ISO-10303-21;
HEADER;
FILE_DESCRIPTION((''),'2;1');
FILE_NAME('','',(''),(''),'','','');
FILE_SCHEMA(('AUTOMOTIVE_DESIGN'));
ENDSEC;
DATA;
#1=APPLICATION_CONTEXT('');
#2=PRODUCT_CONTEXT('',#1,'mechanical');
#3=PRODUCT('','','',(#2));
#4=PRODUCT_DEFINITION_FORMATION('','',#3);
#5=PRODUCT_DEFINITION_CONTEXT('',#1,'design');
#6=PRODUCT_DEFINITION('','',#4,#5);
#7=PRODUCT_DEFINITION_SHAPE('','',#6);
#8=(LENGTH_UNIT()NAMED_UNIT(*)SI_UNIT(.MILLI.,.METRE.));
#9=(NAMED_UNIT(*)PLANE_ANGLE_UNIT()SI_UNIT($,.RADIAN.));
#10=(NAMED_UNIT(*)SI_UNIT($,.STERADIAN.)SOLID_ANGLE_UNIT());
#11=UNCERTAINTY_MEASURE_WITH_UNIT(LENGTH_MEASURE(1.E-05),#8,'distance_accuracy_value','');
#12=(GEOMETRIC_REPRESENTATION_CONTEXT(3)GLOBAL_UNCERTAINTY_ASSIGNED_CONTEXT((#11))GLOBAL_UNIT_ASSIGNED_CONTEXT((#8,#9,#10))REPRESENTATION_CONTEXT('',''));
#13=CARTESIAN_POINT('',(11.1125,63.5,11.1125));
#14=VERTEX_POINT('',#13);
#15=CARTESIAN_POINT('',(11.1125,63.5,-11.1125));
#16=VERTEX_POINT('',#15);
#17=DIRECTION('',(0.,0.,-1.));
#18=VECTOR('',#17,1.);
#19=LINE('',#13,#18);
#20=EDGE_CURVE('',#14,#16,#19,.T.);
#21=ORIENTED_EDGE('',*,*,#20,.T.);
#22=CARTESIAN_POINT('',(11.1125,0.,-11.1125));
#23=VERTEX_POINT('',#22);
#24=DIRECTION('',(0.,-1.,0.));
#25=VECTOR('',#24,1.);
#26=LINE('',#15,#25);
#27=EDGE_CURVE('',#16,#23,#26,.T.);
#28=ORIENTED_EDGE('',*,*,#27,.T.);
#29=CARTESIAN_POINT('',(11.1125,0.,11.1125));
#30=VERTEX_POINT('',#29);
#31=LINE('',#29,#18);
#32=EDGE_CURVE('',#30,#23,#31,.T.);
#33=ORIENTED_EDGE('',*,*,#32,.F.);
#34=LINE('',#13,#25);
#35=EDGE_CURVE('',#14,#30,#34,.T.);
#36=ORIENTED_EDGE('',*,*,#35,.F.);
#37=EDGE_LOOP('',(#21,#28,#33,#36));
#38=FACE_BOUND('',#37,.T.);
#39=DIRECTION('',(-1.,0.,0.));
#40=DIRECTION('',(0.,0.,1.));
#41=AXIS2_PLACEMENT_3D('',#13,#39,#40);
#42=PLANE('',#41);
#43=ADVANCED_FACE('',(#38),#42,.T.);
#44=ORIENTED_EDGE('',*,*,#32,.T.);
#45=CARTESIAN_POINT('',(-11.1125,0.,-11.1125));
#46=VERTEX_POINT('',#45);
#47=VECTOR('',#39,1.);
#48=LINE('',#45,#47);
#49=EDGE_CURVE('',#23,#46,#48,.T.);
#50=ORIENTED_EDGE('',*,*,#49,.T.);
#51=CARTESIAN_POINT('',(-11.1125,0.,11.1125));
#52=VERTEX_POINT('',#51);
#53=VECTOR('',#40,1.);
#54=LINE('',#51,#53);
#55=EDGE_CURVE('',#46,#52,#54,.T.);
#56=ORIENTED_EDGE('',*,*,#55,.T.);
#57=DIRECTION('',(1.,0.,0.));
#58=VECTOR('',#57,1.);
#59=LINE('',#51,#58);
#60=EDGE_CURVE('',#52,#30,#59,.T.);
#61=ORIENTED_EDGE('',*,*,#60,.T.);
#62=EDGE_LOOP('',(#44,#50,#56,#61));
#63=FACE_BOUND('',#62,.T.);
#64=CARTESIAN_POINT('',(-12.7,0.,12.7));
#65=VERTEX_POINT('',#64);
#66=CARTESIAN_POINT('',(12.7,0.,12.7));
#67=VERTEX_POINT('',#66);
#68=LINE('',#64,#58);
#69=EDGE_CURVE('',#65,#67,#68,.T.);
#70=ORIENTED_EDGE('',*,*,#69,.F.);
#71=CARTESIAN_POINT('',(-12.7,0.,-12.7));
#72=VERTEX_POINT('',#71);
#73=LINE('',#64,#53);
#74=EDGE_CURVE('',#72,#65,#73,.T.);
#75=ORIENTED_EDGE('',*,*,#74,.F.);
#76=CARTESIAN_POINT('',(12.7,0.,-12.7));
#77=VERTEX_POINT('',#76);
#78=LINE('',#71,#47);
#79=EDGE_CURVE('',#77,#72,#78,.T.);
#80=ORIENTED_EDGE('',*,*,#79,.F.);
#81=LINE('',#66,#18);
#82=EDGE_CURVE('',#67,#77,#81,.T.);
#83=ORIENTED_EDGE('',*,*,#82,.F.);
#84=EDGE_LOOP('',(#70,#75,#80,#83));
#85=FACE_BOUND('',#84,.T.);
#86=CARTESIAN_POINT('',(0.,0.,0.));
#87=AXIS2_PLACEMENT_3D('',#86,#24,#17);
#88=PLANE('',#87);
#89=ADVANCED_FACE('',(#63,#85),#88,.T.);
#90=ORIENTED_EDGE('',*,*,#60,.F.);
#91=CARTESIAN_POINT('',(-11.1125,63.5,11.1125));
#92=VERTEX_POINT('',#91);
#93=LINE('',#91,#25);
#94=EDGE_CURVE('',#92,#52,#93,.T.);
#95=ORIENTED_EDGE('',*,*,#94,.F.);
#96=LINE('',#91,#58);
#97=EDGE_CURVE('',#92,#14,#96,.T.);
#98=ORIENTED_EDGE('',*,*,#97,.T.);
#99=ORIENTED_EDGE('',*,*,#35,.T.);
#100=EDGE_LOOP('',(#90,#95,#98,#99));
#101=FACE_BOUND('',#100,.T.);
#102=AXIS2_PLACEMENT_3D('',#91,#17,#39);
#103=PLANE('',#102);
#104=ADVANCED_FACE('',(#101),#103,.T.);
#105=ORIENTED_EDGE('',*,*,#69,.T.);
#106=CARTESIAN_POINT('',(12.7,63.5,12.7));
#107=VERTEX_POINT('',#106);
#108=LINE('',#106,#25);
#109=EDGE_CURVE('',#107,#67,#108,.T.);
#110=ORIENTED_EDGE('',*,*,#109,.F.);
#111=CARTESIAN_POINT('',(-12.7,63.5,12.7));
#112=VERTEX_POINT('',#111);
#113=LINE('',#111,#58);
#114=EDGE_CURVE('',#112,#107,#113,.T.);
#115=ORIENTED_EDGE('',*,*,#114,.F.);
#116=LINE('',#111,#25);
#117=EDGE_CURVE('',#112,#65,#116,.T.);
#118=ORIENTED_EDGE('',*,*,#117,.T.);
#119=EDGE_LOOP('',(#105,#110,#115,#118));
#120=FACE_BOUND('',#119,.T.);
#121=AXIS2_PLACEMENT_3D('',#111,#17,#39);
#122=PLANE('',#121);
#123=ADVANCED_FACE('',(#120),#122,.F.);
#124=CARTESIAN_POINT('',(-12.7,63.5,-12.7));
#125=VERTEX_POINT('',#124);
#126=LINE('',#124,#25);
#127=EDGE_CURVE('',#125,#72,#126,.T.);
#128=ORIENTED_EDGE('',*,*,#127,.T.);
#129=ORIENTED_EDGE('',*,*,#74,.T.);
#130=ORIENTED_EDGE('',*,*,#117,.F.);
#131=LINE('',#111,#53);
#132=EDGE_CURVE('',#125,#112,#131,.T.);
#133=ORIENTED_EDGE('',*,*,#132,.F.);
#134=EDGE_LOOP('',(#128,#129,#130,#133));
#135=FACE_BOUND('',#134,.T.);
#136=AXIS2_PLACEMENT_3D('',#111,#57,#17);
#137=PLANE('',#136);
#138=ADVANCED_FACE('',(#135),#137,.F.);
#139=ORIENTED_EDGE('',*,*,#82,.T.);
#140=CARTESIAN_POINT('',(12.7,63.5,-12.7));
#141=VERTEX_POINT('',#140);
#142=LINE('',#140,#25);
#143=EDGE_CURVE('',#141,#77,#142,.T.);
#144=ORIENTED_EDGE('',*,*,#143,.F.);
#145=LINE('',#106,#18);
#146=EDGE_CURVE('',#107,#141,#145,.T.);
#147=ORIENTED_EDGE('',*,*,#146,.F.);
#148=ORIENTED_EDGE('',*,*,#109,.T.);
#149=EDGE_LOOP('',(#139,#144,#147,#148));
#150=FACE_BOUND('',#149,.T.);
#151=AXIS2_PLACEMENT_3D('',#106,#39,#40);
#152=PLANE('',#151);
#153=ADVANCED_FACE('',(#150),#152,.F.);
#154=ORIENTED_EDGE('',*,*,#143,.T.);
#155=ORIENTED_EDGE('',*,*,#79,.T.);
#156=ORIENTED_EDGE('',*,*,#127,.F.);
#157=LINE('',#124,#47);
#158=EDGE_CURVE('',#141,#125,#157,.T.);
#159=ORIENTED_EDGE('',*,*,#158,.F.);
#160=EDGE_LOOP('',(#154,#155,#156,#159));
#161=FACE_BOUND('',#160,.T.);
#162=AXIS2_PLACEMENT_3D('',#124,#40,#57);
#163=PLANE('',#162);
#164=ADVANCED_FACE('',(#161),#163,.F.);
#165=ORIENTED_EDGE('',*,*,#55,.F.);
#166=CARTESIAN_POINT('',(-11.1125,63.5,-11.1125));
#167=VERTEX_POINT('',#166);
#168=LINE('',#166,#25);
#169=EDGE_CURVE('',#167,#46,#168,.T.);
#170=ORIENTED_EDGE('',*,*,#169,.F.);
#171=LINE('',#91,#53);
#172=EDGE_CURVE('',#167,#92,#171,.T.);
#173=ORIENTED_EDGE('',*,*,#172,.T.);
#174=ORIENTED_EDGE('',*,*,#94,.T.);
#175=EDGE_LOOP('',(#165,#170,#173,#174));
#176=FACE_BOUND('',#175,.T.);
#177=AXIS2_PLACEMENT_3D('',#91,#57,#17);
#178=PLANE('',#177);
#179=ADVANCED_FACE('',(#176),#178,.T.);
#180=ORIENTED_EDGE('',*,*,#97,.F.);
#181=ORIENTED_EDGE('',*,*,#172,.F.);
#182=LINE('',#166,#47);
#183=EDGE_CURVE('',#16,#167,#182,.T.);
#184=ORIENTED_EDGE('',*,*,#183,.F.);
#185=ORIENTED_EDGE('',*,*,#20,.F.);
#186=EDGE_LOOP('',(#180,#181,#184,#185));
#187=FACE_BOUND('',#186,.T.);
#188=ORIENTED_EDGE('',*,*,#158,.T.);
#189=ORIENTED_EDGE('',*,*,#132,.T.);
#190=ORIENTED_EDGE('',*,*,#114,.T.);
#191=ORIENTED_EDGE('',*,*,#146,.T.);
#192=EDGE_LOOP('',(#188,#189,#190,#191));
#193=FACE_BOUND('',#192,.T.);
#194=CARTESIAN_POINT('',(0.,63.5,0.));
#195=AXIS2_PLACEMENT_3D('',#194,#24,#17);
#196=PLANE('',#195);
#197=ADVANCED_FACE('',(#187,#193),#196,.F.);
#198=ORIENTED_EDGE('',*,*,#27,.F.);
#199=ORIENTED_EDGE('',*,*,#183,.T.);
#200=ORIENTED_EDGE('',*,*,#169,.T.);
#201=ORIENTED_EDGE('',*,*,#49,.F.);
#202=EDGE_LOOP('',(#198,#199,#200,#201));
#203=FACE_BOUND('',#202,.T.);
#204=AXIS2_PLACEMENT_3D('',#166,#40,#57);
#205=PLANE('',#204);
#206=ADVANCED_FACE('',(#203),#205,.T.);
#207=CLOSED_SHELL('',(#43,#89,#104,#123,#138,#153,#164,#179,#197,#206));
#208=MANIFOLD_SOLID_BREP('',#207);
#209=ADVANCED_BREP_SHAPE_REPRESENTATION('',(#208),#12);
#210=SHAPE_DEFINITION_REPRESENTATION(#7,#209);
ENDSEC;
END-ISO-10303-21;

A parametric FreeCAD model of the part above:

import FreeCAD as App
import Part
import Sketcher
from FreeCAD import Vector
Q = App.Units.Quantity

doc = App.newDocument("Part")
body = doc.addObject("PartDesign::Body", "Body")

# Sketch on XZ plane
sketch1 = body.newObject("Sketcher::SketchObject", "Sketch")
sketch1.AttachmentSupport = (doc.getObject("XZ_Plane"), [""])
sketch1.MapMode = "FlatFace"
sketch1.addGeometry([
    Part.LineSegment(Vector(-12.7, -12.7, 0), Vector(-12.7, 12.7, 0)),  # 0
    Part.LineSegment(Vector(-12.7, 12.7, 0), Vector(12.7, 12.7, 0)),  # 1
    Part.LineSegment(Vector(12.7, 12.7, 0), Vector(12.7, -12.7, 0)),  # 2
    Part.LineSegment(Vector(12.7, -12.7, 0), Vector(-12.7, -12.7, 0)),  # 3
    Part.LineSegment(Vector(11.1125, 11.1125, 0), Vector(-11.1125, 11.1125, 0)),  # 4
    Part.LineSegment(Vector(-11.1125, 11.1125, 0), Vector(-11.1125, -11.1125, 0)),  # 5
    Part.LineSegment(Vector(-11.1125, -11.1125, 0), Vector(11.1125, -11.1125, 0)),  # 6
    Part.LineSegment(Vector(11.1125, -11.1125, 0), Vector(11.1125, 11.1125, 0)),  # 7
], False)
sketch1.addConstraint([
    Sketcher.Constraint("Coincident", 0, 2, 1, 1),
    Sketcher.Constraint("Coincident", 1, 2, 2, 1),
    Sketcher.Constraint("Coincident", 2, 2, 3, 1),
    Sketcher.Constraint("Coincident", 3, 2, 0, 1),
    Sketcher.Constraint("Coincident", 4, 2, 5, 1),
    Sketcher.Constraint("Coincident", 5, 2, 6, 1),
    Sketcher.Constraint("Coincident", 6, 2, 7, 1),
    Sketcher.Constraint("Coincident", 7, 2, 4, 1),
    Sketcher.Constraint("Vertical", 0),
    Sketcher.Constraint("Horizontal", 1),
    Sketcher.Constraint("Vertical", 2),
    Sketcher.Constraint("Horizontal", 3),
    Sketcher.Constraint("Horizontal", 4),
    Sketcher.Constraint("Vertical", 5),
    Sketcher.Constraint("Horizontal", 6),
    Sketcher.Constraint("Vertical", 7),
    Sketcher.Constraint("Symmetric", 0, 2, 2, 2, -1, 1),
    Sketcher.Constraint("Symmetric", 4, 2, 6, 2, -1, 1),
    Sketcher.Constraint("Equal", 3, 0),
    Sketcher.Constraint("Equal", 6, 5),
    Sketcher.Constraint("DistanceX", 1, 1, 1, 2, Q("1 in")),
    Sketcher.Constraint("DistanceX", 4, 2, 4, 1, Q("0.875 in")),
])
pad1 = body.newObject("PartDesign::Pad", "Pad")
pad1.Profile = sketch1
pad1.Length = Q("2.5 in")
pad1.Reversed = True

doc.recompute()
